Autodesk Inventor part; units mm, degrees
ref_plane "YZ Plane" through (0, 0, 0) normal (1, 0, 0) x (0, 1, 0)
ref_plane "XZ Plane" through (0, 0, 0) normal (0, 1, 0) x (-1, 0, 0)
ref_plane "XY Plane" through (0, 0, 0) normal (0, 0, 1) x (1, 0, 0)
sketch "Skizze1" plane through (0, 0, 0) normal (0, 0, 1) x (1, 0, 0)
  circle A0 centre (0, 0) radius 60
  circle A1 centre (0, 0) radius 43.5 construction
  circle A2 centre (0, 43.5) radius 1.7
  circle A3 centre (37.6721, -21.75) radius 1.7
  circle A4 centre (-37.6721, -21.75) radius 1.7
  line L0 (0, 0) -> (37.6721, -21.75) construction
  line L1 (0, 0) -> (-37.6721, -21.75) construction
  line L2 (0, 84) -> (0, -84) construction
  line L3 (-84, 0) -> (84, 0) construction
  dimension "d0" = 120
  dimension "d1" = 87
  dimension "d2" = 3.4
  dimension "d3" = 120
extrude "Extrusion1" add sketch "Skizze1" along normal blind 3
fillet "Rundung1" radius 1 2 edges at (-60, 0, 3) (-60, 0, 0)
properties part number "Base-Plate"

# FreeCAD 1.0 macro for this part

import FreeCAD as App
import Part
import Sketcher
from FreeCAD import Vector
Q = App.Units.Quantity


def edges_at(feature, points):
    """Names of the edges that pass closest to the given points."""
    edges = feature.Shape.Edges
    near = lambda p: min(range(len(edges)), key=lambda i: edges[i].distToShape(Part.Vertex(*p))[0])
    return sorted({f"Edge{near(p) + 1}" for p in points})

doc = App.newDocument("Part")
body = doc.addObject("PartDesign::Body", "Body")

sketch1 = body.newObject("Sketcher::SketchObject", "Sketch")
sketch1.AttachmentSupport = (doc.getObject("XY_Plane"), [""])
sketch1.MapMode = "FlatFace"
sketch1.addGeometry([
    Part.Circle(Vector(0, 0, 0), Vector(0, 0, 1), 60),
    Part.Circle(Vector(-37.7, -21.8, 0), Vector(0, 0, 1), 1.7),
    Part.Circle(Vector(37.7, -21.8, 0), Vector(0, 0, 1), 1.7),
    Part.Circle(Vector(0, 43.5, 0), Vector(0, 0, 1), 1.7),
], False)
sketch1.addConstraint([
    Sketcher.Constraint("Coincident", 0, 3, -1, 1),
    Sketcher.Constraint("Equal", 1, 2),
    Sketcher.Constraint("Equal", 2, 3),
    Sketcher.Constraint("Symmetric", 1, 3, 2, 3, -2),
    Sketcher.Constraint("PointOnObject", 3, 3, -2),
    Sketcher.Constraint("Diameter", 0, Q("120 mm")),
    Sketcher.Constraint("Diameter", 1, Q("3.4 mm")),
    Sketcher.Constraint("DistanceY", -1, 1, 3, 3, Q("43.5 mm")),
    Sketcher.Constraint("DistanceY", 1, 3, -1, 1, Q("21.75 mm")),
    Sketcher.Constraint("DistanceX", 1, 3, -1, 1, Q("37.672 mm")),
])
pad1 = body.newObject("PartDesign::Pad", "Pad")
pad1.Profile = sketch1
pad1.Length = 3
doc.recompute()

fillet = body.newObject("PartDesign::Fillet", "Fillet")
fillet.Base = (pad1, edges_at(pad1, [(-60, 0, 3), (-60, 0, 0)]))
fillet.Radius = 1

doc.recompute()
